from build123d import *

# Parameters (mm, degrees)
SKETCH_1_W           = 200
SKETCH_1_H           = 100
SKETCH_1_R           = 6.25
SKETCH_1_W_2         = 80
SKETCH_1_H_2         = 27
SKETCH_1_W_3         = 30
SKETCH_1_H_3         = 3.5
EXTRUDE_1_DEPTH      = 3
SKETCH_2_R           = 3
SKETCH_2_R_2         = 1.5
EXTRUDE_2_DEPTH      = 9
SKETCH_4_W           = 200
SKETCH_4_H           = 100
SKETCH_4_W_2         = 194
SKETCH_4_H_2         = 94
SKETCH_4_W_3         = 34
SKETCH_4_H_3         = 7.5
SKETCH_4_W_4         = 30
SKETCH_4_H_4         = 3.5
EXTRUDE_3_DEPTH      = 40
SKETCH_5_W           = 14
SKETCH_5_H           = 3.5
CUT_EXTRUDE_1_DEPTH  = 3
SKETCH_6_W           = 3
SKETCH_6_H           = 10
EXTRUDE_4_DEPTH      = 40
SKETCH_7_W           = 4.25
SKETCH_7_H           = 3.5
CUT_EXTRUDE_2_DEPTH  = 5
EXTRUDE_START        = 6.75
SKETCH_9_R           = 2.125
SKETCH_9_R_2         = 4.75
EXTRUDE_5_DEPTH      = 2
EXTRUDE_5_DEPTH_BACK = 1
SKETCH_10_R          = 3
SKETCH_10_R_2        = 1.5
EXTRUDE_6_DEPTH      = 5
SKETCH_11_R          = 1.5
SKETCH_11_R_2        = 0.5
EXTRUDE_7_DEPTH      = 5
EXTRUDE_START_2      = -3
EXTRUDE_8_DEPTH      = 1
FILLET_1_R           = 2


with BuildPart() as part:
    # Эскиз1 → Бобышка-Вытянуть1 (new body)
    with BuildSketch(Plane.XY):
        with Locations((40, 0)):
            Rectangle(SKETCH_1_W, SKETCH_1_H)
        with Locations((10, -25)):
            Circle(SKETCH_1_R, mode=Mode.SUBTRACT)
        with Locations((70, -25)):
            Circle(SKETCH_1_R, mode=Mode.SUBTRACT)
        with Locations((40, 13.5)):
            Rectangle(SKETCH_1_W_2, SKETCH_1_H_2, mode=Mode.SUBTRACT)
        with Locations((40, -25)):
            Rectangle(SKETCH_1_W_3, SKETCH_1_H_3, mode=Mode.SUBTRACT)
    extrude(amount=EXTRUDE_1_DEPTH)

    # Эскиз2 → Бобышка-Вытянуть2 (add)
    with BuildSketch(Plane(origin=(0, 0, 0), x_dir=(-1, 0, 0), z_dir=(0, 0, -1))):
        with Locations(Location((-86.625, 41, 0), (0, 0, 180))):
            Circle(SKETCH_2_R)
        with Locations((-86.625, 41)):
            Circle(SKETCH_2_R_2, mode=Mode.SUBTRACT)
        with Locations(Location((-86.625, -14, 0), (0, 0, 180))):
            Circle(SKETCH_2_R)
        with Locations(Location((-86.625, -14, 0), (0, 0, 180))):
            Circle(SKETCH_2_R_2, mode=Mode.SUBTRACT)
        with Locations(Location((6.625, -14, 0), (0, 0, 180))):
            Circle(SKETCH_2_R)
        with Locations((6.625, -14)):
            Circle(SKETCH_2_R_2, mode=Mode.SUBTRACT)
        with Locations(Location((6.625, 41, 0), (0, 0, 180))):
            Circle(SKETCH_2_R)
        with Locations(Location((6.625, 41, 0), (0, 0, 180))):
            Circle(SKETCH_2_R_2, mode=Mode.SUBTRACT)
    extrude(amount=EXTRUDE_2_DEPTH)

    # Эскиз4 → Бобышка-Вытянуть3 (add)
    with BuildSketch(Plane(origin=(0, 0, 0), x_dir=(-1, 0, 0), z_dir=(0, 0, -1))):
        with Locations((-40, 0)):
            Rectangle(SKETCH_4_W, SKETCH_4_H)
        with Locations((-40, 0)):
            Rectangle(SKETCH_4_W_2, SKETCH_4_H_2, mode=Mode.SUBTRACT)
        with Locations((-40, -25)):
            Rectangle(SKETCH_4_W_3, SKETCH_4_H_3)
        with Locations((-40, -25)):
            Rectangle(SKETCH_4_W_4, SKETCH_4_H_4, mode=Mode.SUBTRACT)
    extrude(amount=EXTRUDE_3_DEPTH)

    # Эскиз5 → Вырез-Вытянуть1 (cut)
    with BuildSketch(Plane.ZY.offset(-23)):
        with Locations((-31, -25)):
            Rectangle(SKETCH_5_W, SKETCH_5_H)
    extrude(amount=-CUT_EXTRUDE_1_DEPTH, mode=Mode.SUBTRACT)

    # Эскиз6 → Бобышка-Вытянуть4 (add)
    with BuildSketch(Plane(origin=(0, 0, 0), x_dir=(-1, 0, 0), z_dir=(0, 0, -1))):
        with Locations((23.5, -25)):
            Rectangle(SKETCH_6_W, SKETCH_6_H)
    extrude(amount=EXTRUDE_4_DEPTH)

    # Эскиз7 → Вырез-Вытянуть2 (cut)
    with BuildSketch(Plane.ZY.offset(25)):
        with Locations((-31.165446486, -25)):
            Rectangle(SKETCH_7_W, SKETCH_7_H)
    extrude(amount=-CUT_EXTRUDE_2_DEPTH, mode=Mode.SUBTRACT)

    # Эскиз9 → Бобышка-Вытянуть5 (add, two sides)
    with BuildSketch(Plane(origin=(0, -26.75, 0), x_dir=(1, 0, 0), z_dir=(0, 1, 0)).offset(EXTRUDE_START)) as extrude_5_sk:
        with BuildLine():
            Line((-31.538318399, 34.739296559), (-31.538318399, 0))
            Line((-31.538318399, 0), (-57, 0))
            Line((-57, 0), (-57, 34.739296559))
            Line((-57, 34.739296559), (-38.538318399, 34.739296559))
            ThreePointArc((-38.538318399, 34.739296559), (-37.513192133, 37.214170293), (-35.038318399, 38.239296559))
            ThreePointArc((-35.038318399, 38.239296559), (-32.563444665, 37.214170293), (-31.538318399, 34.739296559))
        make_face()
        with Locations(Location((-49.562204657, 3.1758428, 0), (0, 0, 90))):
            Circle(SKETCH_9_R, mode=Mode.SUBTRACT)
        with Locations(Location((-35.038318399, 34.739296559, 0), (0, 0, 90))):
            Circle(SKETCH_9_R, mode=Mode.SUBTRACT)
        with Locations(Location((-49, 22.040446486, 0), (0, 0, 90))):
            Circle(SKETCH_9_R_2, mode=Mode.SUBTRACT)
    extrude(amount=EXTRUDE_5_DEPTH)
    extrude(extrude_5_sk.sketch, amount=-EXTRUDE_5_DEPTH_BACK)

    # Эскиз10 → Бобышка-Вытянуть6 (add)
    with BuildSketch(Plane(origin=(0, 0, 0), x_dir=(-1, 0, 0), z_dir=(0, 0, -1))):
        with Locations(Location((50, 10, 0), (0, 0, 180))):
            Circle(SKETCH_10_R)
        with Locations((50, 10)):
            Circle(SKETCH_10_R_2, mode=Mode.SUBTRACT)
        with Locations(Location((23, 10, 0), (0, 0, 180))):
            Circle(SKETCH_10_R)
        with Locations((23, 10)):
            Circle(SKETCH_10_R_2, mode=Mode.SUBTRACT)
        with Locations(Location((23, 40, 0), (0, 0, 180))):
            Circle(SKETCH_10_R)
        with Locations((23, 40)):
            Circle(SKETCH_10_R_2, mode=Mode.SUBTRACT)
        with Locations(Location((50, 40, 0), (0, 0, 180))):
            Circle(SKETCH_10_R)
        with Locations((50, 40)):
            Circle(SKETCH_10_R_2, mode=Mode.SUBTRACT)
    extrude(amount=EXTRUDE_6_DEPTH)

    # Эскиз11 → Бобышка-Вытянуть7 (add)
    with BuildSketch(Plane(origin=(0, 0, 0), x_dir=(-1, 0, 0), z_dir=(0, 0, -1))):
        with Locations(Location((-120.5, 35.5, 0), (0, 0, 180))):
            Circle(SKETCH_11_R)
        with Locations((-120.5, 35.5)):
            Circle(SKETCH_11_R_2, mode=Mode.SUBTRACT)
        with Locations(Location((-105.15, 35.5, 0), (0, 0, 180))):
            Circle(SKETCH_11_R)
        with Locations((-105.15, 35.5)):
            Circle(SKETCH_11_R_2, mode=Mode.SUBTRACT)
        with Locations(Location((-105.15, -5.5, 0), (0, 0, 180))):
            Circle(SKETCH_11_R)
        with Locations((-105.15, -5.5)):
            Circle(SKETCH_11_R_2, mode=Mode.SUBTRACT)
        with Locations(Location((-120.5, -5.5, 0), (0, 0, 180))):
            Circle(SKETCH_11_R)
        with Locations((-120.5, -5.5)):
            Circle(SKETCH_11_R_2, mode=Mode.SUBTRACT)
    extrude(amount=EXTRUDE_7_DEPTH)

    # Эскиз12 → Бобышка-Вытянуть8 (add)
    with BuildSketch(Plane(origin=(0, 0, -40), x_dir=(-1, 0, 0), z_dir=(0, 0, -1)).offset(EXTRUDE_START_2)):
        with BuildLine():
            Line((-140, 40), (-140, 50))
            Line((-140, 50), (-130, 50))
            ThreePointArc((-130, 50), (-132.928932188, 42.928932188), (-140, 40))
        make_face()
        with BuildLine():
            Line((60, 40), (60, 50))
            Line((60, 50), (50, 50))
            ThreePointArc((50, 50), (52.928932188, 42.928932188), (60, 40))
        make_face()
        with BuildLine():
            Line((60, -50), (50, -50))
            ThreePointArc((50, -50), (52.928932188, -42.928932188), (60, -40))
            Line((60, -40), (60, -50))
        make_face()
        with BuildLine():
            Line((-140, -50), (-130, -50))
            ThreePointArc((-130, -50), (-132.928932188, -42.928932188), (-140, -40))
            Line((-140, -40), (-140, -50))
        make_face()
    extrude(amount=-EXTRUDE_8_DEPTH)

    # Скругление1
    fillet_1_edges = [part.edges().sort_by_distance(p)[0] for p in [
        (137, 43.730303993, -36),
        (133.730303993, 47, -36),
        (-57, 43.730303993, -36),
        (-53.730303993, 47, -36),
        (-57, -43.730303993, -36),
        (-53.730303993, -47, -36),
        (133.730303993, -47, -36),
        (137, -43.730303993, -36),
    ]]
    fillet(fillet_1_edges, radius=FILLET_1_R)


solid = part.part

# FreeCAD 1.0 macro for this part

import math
import FreeCAD as App
import Part
import Sketcher


def edges_at(feature, points):
    """Names of the edges that pass closest to the given points."""
    edges = feature.Shape.Edges
    near = lambda p: min(range(len(edges)), key=lambda i: edges[i].distToShape(Part.Vertex(*p))[0])
    return sorted({f"Edge{near(p) + 1}" for p in points})


def add_polygon(sketch, points):
    """Adds a closed chain of lines whose ends are joined by coincident constraints."""
    first, n = sketch.GeometryCount, len(points)
    for a, b in zip(points, points[1:] + points[:1]):
        sketch.addGeometry(Part.LineSegment(App.Vector(*a, 0), App.Vector(*b, 0)), False)
    for i in range(n):
        sketch.addConstraint(Sketcher.Constraint("Coincident", first + i, 2, first + (i + 1) % n, 1))

doc = App.newDocument("Part")
params = doc.addObject("Spreadsheet::Sheet", "Params")
for row, (alias, value) in enumerate([
    ("sketch1_diameter", "12.5 mm"),
    ("sketch1_width", "200 mm"),
    ("sketch1_width2", "30 mm"),
    ("sketch1_width3", "80 mm"),
    ("sketch1_height", "100 mm"),
    ("pad1_length", "3 mm"),
    ("sketch2_diameter", "6 mm"),
    ("sketch2_diameter2", "3 mm"),
    ("pad2_length", "9 mm"),
    ("sketch3_width", "200 mm"),
    ("sketch3_width2", "194 mm"),
    ("sketch3_width3", "34 mm"),
    ("sketch3_width4", "30 mm"),
    ("sketch3_height", "100 mm"),
    ("pad3_length", "40 mm"),
    ("sketch4_height", "14 mm"),
    ("sketch4_width", "3.5 mm"),
    ("pocket1_length", "3 mm"),
    ("sketch5_width", "3 mm"),
    ("sketch5_height", "10 mm"),
    ("pad4_length", "40 mm"),
    ("sketch6_width", "3.5 mm"),
    ("sketch6_height", "4.25 mm"),
    ("pocket2_length", "5 mm"),
    ("sketch7_diameter", "9.5 mm"),
    ("sketch7_radius", "3.5 mm"),
    ("sketch7_diameter2", "4.25 mm"),
    ("pad5_length", "2 mm"),
    ("pad5_length2", "1 mm"),
    ("sketch8_diameter", "6 mm"),
    ("sketch8_diameter2", "3 mm"),
    ("pad6_length", "5 mm"),
    ("sketch9_diameter", "3 mm"),
    ("sketch9_diameter2", "1 mm"),
    ("pad7_length", "5 mm"),
    ("sketch10_radius", "10 mm"),
    ("pad8_length", "1 mm"),
    ("fillet_radius", "2 mm"),
], start=1):
    params.set(f"A{row}", alias)
    params.set(f"B{row}", "=" + value)
    params.setAlias(f"B{row}", alias)

body = doc.addObject("PartDesign::Body", "Body")

sketch1 = body.newObject("Sketcher::SketchObject", "Sketch")
sketch1.AttachmentSupport = (doc.getObject("XY_Plane"), [""])
sketch1.MapMode = "FlatFace"
add_polygon(sketch1, [(-60, 50), (-60, -50), (140, -50), (140, 50)])
sketch1.addGeometry(Part.Circle(App.Vector(10, -25, 0), App.Vector(0, 0, 1), 6.2), False)
add_polygon(sketch1, [(55, -26.8), (25, -26.8), (25, -23.2), (55, -23.2)])
sketch1.addGeometry(Part.Circle(App.Vector(70, -25, 0), App.Vector(0, 0, 1), 6.2), False)
add_polygon(sketch1, [(80, 0), (0, 0), (0, 27), (80, 27)])
sketch1.addConstraint(Sketcher.Constraint("Vertical", 0))
sketch1.addConstraint(Sketcher.Constraint("Horizontal", 1))
sketch1.addConstraint(Sketcher.Constraint("Vertical", 2))
sketch1.addConstraint(Sketcher.Constraint("Horizontal", 3))
sketch1.addConstraint(Sketcher.Constraint("Horizontal", 5))
sketch1.addConstraint(Sketcher.Constraint("Vertical", 6))
sketch1.addConstraint(Sketcher.Constraint("Horizontal", 7))
sketch1.addConstraint(Sketcher.Constraint("Vertical", 8))
sketch1.addConstraint(Sketcher.Constraint("Horizontal", 10))
sketch1.addConstraint(Sketcher.Constraint("Vertical", 11))
sketch1.addConstraint(Sketcher.Constraint("Horizontal", 12))
sketch1.addConstraint(Sketcher.Constraint("Vertical", 13))
sketch1.addConstraint(Sketcher.Constraint("Coincident", 10, 2, -1, 1))
sketch1.addConstraint(Sketcher.Constraint("Equal", 4, 9))
sketch1.addConstraint(Sketcher.Constraint("Horizontal", 4, 3, 9, 3))
sketch1.addConstraint(Sketcher.Constraint("Diameter", 4, 12.5))
sketch1.addConstraint(Sketcher.Constraint("DistanceX", 1, 1, 1, 2, 200.0))
sketch1.addConstraint(Sketcher.Constraint("DistanceX", 5, 2, 5, 1, 30.0))
sketch1.addConstraint(Sketcher.Constraint("DistanceX", 10, 2, 10, 1, 80.0))
sketch1.addConstraint(Sketcher.Constraint("DistanceY", 0, 2, 0, 1, 100.0))
sketch1.addConstraint(Sketcher.Constraint("DistanceY", 11, 1, 11, 2, 27.0))
sketch1.addConstraint(Sketcher.Constraint("DistanceY", 6, 1, 6, 2, 3.5))
sketch1.addConstraint(Sketcher.Constraint("DistanceX", -1, 1, 4, 3, 10.0))
sketch1.addConstraint(Sketcher.Constraint("DistanceY", 4, 3, -1, 1, 25.0))
sketch1.addConstraint(Sketcher.Constraint("DistanceX", -1, 1, 9, 3, 70.0))
sketch1.addConstraint(Sketcher.Constraint("DistanceX", 0, 2, -1, 1, 60.0))
sketch1.addConstraint(Sketcher.Constraint("DistanceY", 0, 2, -1, 1, 50.0))
sketch1.addConstraint(Sketcher.Constraint("DistanceX", -1, 1, 5, 2, 25.0))
sketch1.addConstraint(Sketcher.Constraint("DistanceY", 5, 2, -1, 1, 26.75))
sketch1.setExpression("Constraints[27]", "Params.sketch1_diameter")
sketch1.setExpression("Constraints[28]", "Params.sketch1_width")
sketch1.setExpression("Constraints[29]", "Params.sketch1_width2")
sketch1.setExpression("Constraints[30]", "Params.sketch1_width3")
sketch1.setExpression("Constraints[31]", "Params.sketch1_height")
pad1 = body.newObject("PartDesign::Pad", "Pad")
pad1.Profile = sketch1
pad1.setExpression("Length", "Params.pad1_length")

sketch2 = body.newObject("Sketcher::SketchObject", "Sketch001")
sketch2.AttachmentSupport = (doc.getObject("XY_Plane"), [""])
sketch2.MapMode = "FlatFace"
sketch2.addGeometry(Part.Circle(App.Vector(86.6, 41, 0), App.Vector(0, 0, 1), 3), False)
sketch2.addGeometry(Part.Circle(App.Vector(86.6, 41, 0), App.Vector(0, 0, 1), 1.5), False)
sketch2.addGeometry(Part.Circle(App.Vector(86.6, -14, 0), App.Vector(0, 0, 1), 3), False)
sketch2.addGeometry(Part.Circle(App.Vector(86.6, -14, 0), App.Vector(0, 0, 1), 1.5), False)
sketch2.addGeometry(Part.Circle(App.Vector(-6.6, -14, 0), App.Vector(0, 0, 1), 3), False)
sketch2.addGeometry(Part.Circle(App.Vector(-6.6, -14, 0), App.Vector(0, 0, 1), 1.5), False)
sketch2.addGeometry(Part.Circle(App.Vector(-6.6, 41, 0), App.Vector(0, 0, 1), 3), False)
sketch2.addGeometry(Part.Circle(App.Vector(-6.6, 41, 0), App.Vector(0, 0, 1), 1.5), False)
sketch2.addConstraint(Sketcher.Constraint("Coincident", 1, 3, 0, 3))
sketch2.addConstraint(Sketcher.Constraint("Coincident", 3, 3, 2, 3))
sketch2.addConstraint(Sketcher.Constraint("Coincident", 5, 3, 4, 3))
sketch2.addConstraint(Sketcher.Constraint("Coincident", 7, 3, 6, 3))
sketch2.addConstraint(Sketcher.Constraint("Equal", 0, 2))
sketch2.addConstraint(Sketcher.Constraint("Equal", 1, 3))
sketch2.addConstraint(Sketcher.Constraint("Equal", 2, 4))
sketch2.addConstraint(Sketcher.Constraint("Equal", 3, 5))
sketch2.addConstraint(Sketcher.Constraint("Equal", 4, 6))
sketch2.addConstraint(Sketcher.Constraint("Equal", 5, 7))
sketch2.addConstraint(Sketcher.Constraint("Horizontal", 3, 3, 4, 3))
sketch2.addConstraint(Sketcher.Constraint("Horizontal", 1, 3, 6, 3))
sketch2.addConstraint(Sketcher.Constraint("Vertical", 1, 3, 2, 3))
sketch2.addConstraint(Sketcher.Constraint("Vertical", 5, 3, 6, 3))
sketch2.addConstraint(Sketcher.Constraint("Diameter", 0, 6.0))
sketch2.addConstraint(Sketcher.Constraint("Diameter", 1, 3.0))
sketch2.addConstraint(Sketcher.Constraint("DistanceY", -1, 1, 0, 3, 41.0))
sketch2.addConstraint(Sketcher.Constraint("DistanceY", 2, 3, -1, 1, 14.0))
sketch2.addConstraint(Sketcher.Constraint("DistanceX", 4, 3, 2, 3, 93.25))
sketch2.addConstraint(Sketcher.Constraint("DistanceX", -1, 1, 0, 3, 86.625))
sketch2.setExpression("Constraints[14]", "Params.sketch2_diameter")
sketch2.setExpression("Constraints[15]", "Params.sketch2_diameter2")
pad2 = body.newObject("PartDesign::Pad", "Pad001")
pad2.Profile = sketch2
pad2.setExpression("Length", "Params.pad2_length")
pad2.Reversed = True

sketch3 = body.newObject("Sketcher::SketchObject", "Sketch002")
sketch3.AttachmentSupport = (doc.getObject("XY_Plane"), [""])
sketch3.MapMode = "FlatFace"
add_polygon(sketch3, [(140, 50), (140, -50), (-60, -50), (-60, 50)])
add_polygon(sketch3, [(-57, -47), (137, -47), (137, 47), (-57, 47)])
add_polygon(sketch3, [(57, -21.2), (57, -28.8), (23, -28.8), (23, -21.2)])
add_polygon(sketch3, [(25, -26.8), (55, -26.8), (55, -23.2), (25, -23.2)])
sketch3.addConstraint(Sketcher.Constraint("Vertical", 0))
sketch3.addConstraint(Sketcher.Constraint("Horizontal", 1))
sketch3.addConstraint(Sketcher.Constraint("Vertical", 2))
sketch3.addConstraint(Sketcher.Constraint("Horizontal", 3))
sketch3.addConstraint(Sketcher.Constraint("Horizontal", 4))
sketch3.addConstraint(Sketcher.Constraint("Vertical", 5))
sketch3.addConstraint(Sketcher.Constraint("Horizontal", 6))
sketch3.addConstraint(Sketcher.Constraint("Vertical", 7))
sketch3.addConstraint(Sketcher.Constraint("Vertical", 8))
sketch3.addConstraint(Sketcher.Constraint("Horizontal", 9))
sketch3.addConstraint(Sketcher.Constraint("Vertical", 10))
sketch3.addConstraint(Sketcher.Constraint("Horizontal", 11))
sketch3.addConstraint(Sketcher.Constraint("Horizontal", 12))
sketch3.addConstraint(Sketcher.Constraint("Vertical", 13))
sketch3.addConstraint(Sketcher.Constraint("Horizontal", 14))
sketch3.addConstraint(Sketcher.Constraint("Vertical", 15))
sketch3.addConstraint(Sketcher.Constraint("DistanceX", 1, 2, 1, 1, 200.0))
sketch3.addConstraint(Sketcher.Constraint("DistanceX", 4, 1, 4, 2, 194.0))
sketch3.addConstraint(Sketcher.Constraint("DistanceX", 9, 2, 9, 1, 34.0))
sketch3.addConstraint(Sketcher.Constraint("DistanceX", 12, 1, 12, 2, 30.0))
sketch3.addConstraint(Sketcher.Constraint("DistanceY", 0, 2, 0, 1, 100.0))
sketch3.addConstraint(Sketcher.Constraint("DistanceY", 5, 1, 5, 2, 94.0))
sketch3.addConstraint(Sketcher.Constraint("DistanceY", 8, 2, 8, 1, 7.5))
sketch3.addConstraint(Sketcher.Constraint("DistanceY", 13, 1, 13, 2, 3.5))
sketch3.addConstraint(Sketcher.Constraint("DistanceX", -1, 1, 0, 2, 140.0))
sketch3.addConstraint(Sketcher.Constraint("DistanceY", 0, 2, -1, 1, 50.0))
sketch3.addConstraint(Sketcher.Constraint("DistanceX", -1, 1, 4, 2, 137.0))
sketch3.addConstraint(Sketcher.Constraint("DistanceY", 4, 2, -1, 1, 47.0))
sketch3.addConstraint(Sketcher.Constraint("DistanceX", -1, 1, 8, 2, 57.0))
sketch3.addConstraint(Sketcher.Constraint("DistanceX", -1, 1, 12, 2, 55.0))
sketch3.addConstraint(Sketcher.Constraint("DistanceY", 8, 2, 12, 2, 2.0))
sketch3.addConstraint(Sketcher.Constraint("DistanceY", 8, 2, -1, 1, 28.75))
sketch3.setExpression("Constraints[32]", "Params.sketch3_width")
sketch3.setExpression("Constraints[33]", "Params.sketch3_width2")
sketch3.setExpression("Constraints[34]", "Params.sketch3_width3")
sketch3.setExpression("Constraints[35]", "Params.sketch3_width4")
sketch3.setExpression("Constraints[36]", "Params.sketch3_height")
pad3 = body.newObject("PartDesign::Pad", "Pad002")
pad3.Profile = sketch3
pad3.setExpression("Length", "Params.pad3_length")
pad3.Reversed = True

sketch4 = body.newObject("Sketcher::SketchObject", "Sketch003")
sketch4.AttachmentSupport = (doc.getObject("YZ_Plane"), [""])
sketch4.MapMode = "FlatFace"
sketch4.AttachmentOffset = App.Placement(App.Vector(0, 0, 23), App.Rotation())
add_polygon(sketch4, [(-23.2, -38), (-26.8, -38), (-26.8, -24), (-23.2, -24)])
sketch4.addConstraint(Sketcher.Constraint("Horizontal", 0))
sketch4.addConstraint(Sketcher.Constraint("Vertical", 1))
sketch4.addConstraint(Sketcher.Constraint("Horizontal", 2))
sketch4.addConstraint(Sketcher.Constraint("Vertical", 3))
sketch4.addConstraint(Sketcher.Constraint("DistanceY", 1, 1, 1, 2, 14.0))
sketch4.addConstraint(Sketcher.Constraint("DistanceX", 0, 2, 0, 1, 3.5))
sketch4.addConstraint(Sketcher.Constraint("DistanceY", 0, 2, -1, 1, 38.0))
sketch4.addConstraint(Sketcher.Constraint("DistanceX", 0, 2, -1, 1, 26.75))
sketch4.setExpression("Constraints[8]", "Params.sketch4_height")
sketch4.setExpression("Constraints[9]", "Params.sketch4_width")
pocket1 = body.newObject("PartDesign::Pocket", "Pocket")
pocket1.Profile = sketch4
pocket1.setExpression("Length", "Params.pocket1_length")
pocket1.Reversed = True

sketch5 = body.newObject("Sketcher::SketchObject", "Sketch004")
sketch5.AttachmentSupport = (doc.getObject("XY_Plane"), [""])
sketch5.MapMode = "FlatFace"
add_polygon(sketch5, [(-22, -20), (-22, -30), (-25, -30), (-25, -20)])
sketch5.addConstraint(Sketcher.Constraint("Vertical", 0))
sketch5.addConstraint(Sketcher.Constraint("Horizontal", 1))
sketch5.addConstraint(Sketcher.Constraint("Vertical", 2))
sketch5.addConstraint(Sketcher.Constraint("Horizontal", 3))
sketch5.addConstraint(Sketcher.Constraint("DistanceX", 1, 2, 1, 1, 3.0))
sketch5.addConstraint(Sketcher.Constraint("DistanceY", 0, 2, 0, 1, 10.0))
sketch5.addConstraint(Sketcher.Constraint("DistanceX", 0, 2, -1, 1, 22.0))
sketch5.addConstraint(Sketcher.Constraint("DistanceY", 0, 2, -1, 1, 30.0))
sketch5.setExpression("Constraints[8]", "Params.sketch5_width")
sketch5.setExpression("Constraints[9]", "Params.sketch5_height")
pad4 = body.newObject("PartDesign::Pad", "Pad003")
pad4.Profile = sketch5
pad4.setExpression("Length", "Params.pad4_length")
pad4.Reversed = True

sketch6 = body.newObject("Sketcher::SketchObject", "Sketch005")
sketch6.AttachmentSupport = (doc.getObject("YZ_Plane"), [""])
sketch6.MapMode = "FlatFace"
sketch6.AttachmentOffset = App.Placement(App.Vector(0, 0, -25), App.Rotation())
add_polygon(sketch6, [(-23.2, -33.3), (-26.8, -33.3), (-26.8, -29), (-23.2, -29)])
sketch6.addConstraint(Sketcher.Constraint("Horizontal", 0))
sketch6.addConstraint(Sketcher.Constraint("Vertical", 1))
sketch6.addConstraint(Sketcher.Constraint("Horizontal", 2))
sketch6.addConstraint(Sketcher.Constraint("Vertical", 3))
sketch6.addConstraint(Sketcher.Constraint("DistanceX", 0, 2, 0, 1, 3.5))
sketch6.addConstraint(Sketcher.Constraint("DistanceY", 1, 1, 1, 2, 4.25))
sketch6.addConstraint(Sketcher.Constraint("DistanceX", 0, 2, -1, 1, 26.75))
sketch6.addConstraint(Sketcher.Constraint("DistanceY", 0, 2, -1, 1, 33.290446))
sketch6.setExpression("Constraints[8]", "Params.sketch6_width")
sketch6.setExpression("Constraints[9]", "Params.sketch6_height")
pocket2 = body.newObject("PartDesign::Pocket", "Pocket001")
pocket2.Profile = sketch6
pocket2.setExpression("Length", "Params.pocket2_length")
pocket2.Reversed = True

sketch7 = body.newObject("Sketcher::SketchObject", "Sketch006")
sketch7.AttachmentSupport = (doc.getObject("XZ_Plane"), [""])
sketch7.MapMode = "FlatFace"
sketch7.AttachmentOffset = App.Placement(App.Vector(0, 0, 20), App.Rotation())
sketch7.addGeometry(Part.LineSegment(App.Vector(-31.5, 0, 0), App.Vector(-31.5, -34.7, 0)), False)
sketch7.addGeometry(Part.ArcOfCircle(Part.Circle(App.Vector(-35, -34.7, 0), App.Vector(0, 0, 1), 3.5), math.radians(-90), math.radians(0)), False)
sketch7.addGeometry(Part.ArcOfCircle(Part.Circle(App.Vector(-35, -34.7, 0), App.Vector(0, 0, 1), 3.5), math.radians(-180), math.radians(-90)), False)
sketch7.addGeometry(Part.LineSegment(App.Vector(-38.5, -34.7, 0), App.Vector(-57, -34.7, 0)), False)
sketch7.addGeometry(Part.LineSegment(App.Vector(-57, -34.7, 0), App.Vector(-57, 0, 0)), False)
sketch7.addGeometry(Part.LineSegment(App.Vector(-57, 0, 0), App.Vector(-31.5, 0, 0)), False)
sketch7.addGeometry(Part.Circle(App.Vector(-49.6, -3.2, 0), App.Vector(0, 0, 1), 2.1), False)
sketch7.addGeometry(Part.Circle(App.Vector(-35, -34.7, 0), App.Vector(0, 0, 1), 2.1), False)
sketch7.addGeometry(Part.Circle(App.Vector(-49, -22, 0), App.Vector(0, 0, 1), 4.8), False)
sketch7.addConstraint(Sketcher.Constraint("Tangent", 0, 2, 1, 2))
sketch7.addConstraint(Sketcher.Constraint("Tangent", 1, 1, 2, 2))
sketch7.addConstraint(Sketcher.Constraint("Coincident", 2, 1, 3, 1))
sketch7.addConstraint(Sketcher.Constraint("Coincident", 3, 2, 4, 1))
sketch7.addConstraint(Sketcher.Constraint("Coincident", 4, 2, 5, 1))
sketch7.addConstraint(Sketcher.Constraint("Coincident", 5, 2, 0, 1))
sketch7.addConstraint(Sketcher.Constraint("Vertical", 0))
sketch7.addConstraint(Sketcher.Constraint("Horizontal", 3))
sketch7.addConstraint(Sketcher.Constraint("Vertical", 4))
sketch7.addConstraint(Sketcher.Constraint("Horizontal", 5))
sketch7.addConstraint(Sketcher.Constraint("Coincident", 7, 3, 1, 3))
sketch7.addConstraint(Sketcher.Constraint("Equal", 1, 2))
sketch7.addConstraint(Sketcher.Constraint("Equal", 6, 7))
sketch7.addConstraint(Sketcher.Constraint("PointOnObject", 4, 2, -1))
sketch7.addConstraint(Sketcher.Constraint("Horizontal", 0, 2, 2, 1))
sketch7.addConstraint(Sketcher.Constraint("Vertical", 7, 3, 1, 1))
sketch7.addConstraint(Sketcher.Constraint("Diameter", 8, 9.5))
sketch7.addConstraint(Sketcher.Constraint("Radius", 1, 3.5))
sketch7.addConstraint(Sketcher.Constraint("Diameter", 6, 4.25))
sketch7.addConstraint(Sketcher.Constraint("DistanceX", 8, 3, -1, 1, 49.0))
sketch7.addConstraint(Sketcher.Constraint("DistanceX", 3, 2, -1, 1, 57.0))
sketch7.addConstraint(Sketcher.Constraint("DistanceX", 3, 2, 3, 1, 18.461682))
sketch7.addConstraint(Sketcher.Constraint("DistanceY", 0, 2, 0, 1, 34.739297))
sketch7.addConstraint(Sketcher.Constraint("DistanceY", 1, 3, 8, 3, 12.69885))
sketch7.addConstraint(Sketcher.Constraint("DistanceX", 6, 3, -1, 1, 49.562205))
sketch7.addConstraint(Sketcher.Constraint("DistanceY", 6, 3, -1, 1, 3.175843))
sketch7.setExpression("Constraints[16]", "Params.sketch7_diameter")
sketch7.setExpression("Constraints[17]", "Params.sketch7_radius")
sketch7.setExpression("Constraints[18]", "Params.sketch7_diameter2")
pad5 = body.newObject("PartDesign::Pad", "Pad004")
pad5.Profile = sketch7
pad5.Type = "TwoLengths"
pad5.setExpression("Length", "Params.pad5_length")
pad5.setExpression("Length2", "Params.pad5_length2")
pad5.Reversed = True

sketch8 = body.newObject("Sketcher::SketchObject", "Sketch007")
sketch8.AttachmentSupport = (doc.getObject("XY_Plane"), [""])
sketch8.MapMode = "FlatFace"
sketch8.addGeometry(Part.Circle(App.Vector(-50, 10, 0), App.Vector(0, 0, 1), 3), False)
sketch8.addGeometry(Part.Circle(App.Vector(-50, 10, 0), App.Vector(0, 0, 1), 1.5), False)
sketch8.addGeometry(Part.Circle(App.Vector(-23, 10, 0), App.Vector(0, 0, 1), 3), False)
sketch8.addGeometry(Part.Circle(App.Vector(-23, 10, 0), App.Vector(0, 0, 1), 1.5), False)
sketch8.addGeometry(Part.Circle(App.Vector(-23, 40, 0), App.Vector(0, 0, 1), 3), False)
sketch8.addGeometry(Part.Circle(App.Vector(-23, 40, 0), App.Vector(0, 0, 1), 1.5), False)
sketch8.addGeometry(Part.Circle(App.Vector(-50, 40, 0), App.Vector(0, 0, 1), 3), False)
sketch8.addGeometry(Part.Circle(App.Vector(-50, 40, 0), App.Vector(0, 0, 1), 1.5), False)
sketch8.addConstraint(Sketcher.Constraint("Coincident", 1, 3, 0, 3))
sketch8.addConstraint(Sketcher.Constraint("Coincident", 3, 3, 2, 3))
sketch8.addConstraint(Sketcher.Constraint("Coincident", 5, 3, 4, 3))
sketch8.addConstraint(Sketcher.Constraint("Coincident", 7, 3, 6, 3))
sketch8.addConstraint(Sketcher.Constraint("Equal", 0, 2))
sketch8.addConstraint(Sketcher.Constraint("Equal", 1, 3))
sketch8.addConstraint(Sketcher.Constraint("Equal", 2, 4))
sketch8.addConstraint(Sketcher.Constraint("Equal", 3, 5))
sketch8.addConstraint(Sketcher.Constraint("Equal", 4, 6))
sketch8.addConstraint(Sketcher.Constraint("Equal", 5, 7))
sketch8.addConstraint(Sketcher.Constraint("Horizontal", 1, 3, 2, 3))
sketch8.addConstraint(Sketcher.Constraint("Horizontal", 5, 3, 6, 3))
sketch8.addConstraint(Sketcher.Constraint("Vertical", 3, 3, 4, 3))
sketch8.addConstraint(Sketcher.Constraint("Vertical", 1, 3, 6, 3))
sketch8.addConstraint(Sketcher.Constraint("Diameter", 0, 6.0))
sketch8.addConstraint(Sketcher.Constraint("Diameter", 1, 3.0))
sketch8.addConstraint(Sketcher.Constraint("DistanceX", 0, 3, -1, 1, 50.0))
sketch8.addConstraint(Sketcher.Constraint("DistanceY", -1, 1, 0, 3, 10.0))
sketch8.addConstraint(Sketcher.Constraint("DistanceX", 2, 3, -1, 1, 23.0))
sketch8.addConstraint(Sketcher.Constraint("DistanceY", -1, 1, 4, 3, 40.0))
sketch8.setExpression("Constraints[14]", "Params.sketch8_diameter")
sketch8.setExpression("Constraints[15]", "Params.sketch8_diameter2")
pad6 = body.newObject("PartDesign::Pad", "Pad005")
pad6.Profile = sketch8
pad6.setExpression("Length", "Params.pad6_length")
pad6.Reversed = True

sketch9 = body.newObject("Sketcher::SketchObject", "Sketch008")
sketch9.AttachmentSupport = (doc.getObject("XY_Plane"), [""])
sketch9.MapMode = "FlatFace"
sketch9.addGeometry(Part.Circle(App.Vector(120.5, 35.5, 0), App.Vector(0, 0, 1), 1.5), False)
sketch9.addGeometry(Part.Circle(App.Vector(120.5, 35.5, 0), App.Vector(0, 0, 1), 0.5), False)
sketch9.addGeometry(Part.Circle(App.Vector(105.2, 35.5, 0), App.Vector(0, 0, 1), 1.5), False)
sketch9.addGeometry(Part.Circle(App.Vector(105.2, 35.5, 0), App.Vector(0, 0, 1), 0.5), False)
sketch9.addGeometry(Part.Circle(App.Vector(105.2, -5.5, 0), App.Vector(0, 0, 1), 1.5), False)
sketch9.addGeometry(Part.Circle(App.Vector(105.2, -5.5, 0), App.Vector(0, 0, 1), 0.5), False)
sketch9.addGeometry(Part.Circle(App.Vector(120.5, -5.5, 0), App.Vector(0, 0, 1), 1.5), False)
sketch9.addGeometry(Part.Circle(App.Vector(120.5, -5.5, 0), App.Vector(0, 0, 1), 0.5), False)
sketch9.addConstraint(Sketcher.Constraint("Coincident", 1, 3, 0, 3))
sketch9.addConstraint(Sketcher.Constraint("Coincident", 3, 3, 2, 3))
sketch9.addConstraint(Sketcher.Constraint("Coincident", 5, 3, 4, 3))
sketch9.addConstraint(Sketcher.Constraint("Coincident", 7, 3, 6, 3))
sketch9.addConstraint(Sketcher.Constraint("Equal", 0, 2))
sketch9.addConstraint(Sketcher.Constraint("Equal", 1, 3))
sketch9.addConstraint(Sketcher.Constraint("Equal", 2, 4))
sketch9.addConstraint(Sketcher.Constraint("Equal", 3, 5))
sketch9.addConstraint(Sketcher.Constraint("Equal", 4, 6))
sketch9.addConstraint(Sketcher.Constraint("Equal", 5, 7))
sketch9.addConstraint(Sketcher.Constraint("Horizontal", 1, 3, 2, 3))
sketch9.addConstraint(Sketcher.Constraint("Horizontal", 5, 3, 6, 3))
sketch9.addConstraint(Sketcher.Constraint("Vertical", 3, 3, 4, 3))
sketch9.addConstraint(Sketcher.Constraint("Vertical", 1, 3, 6, 3))
sketch9.addConstraint(Sketcher.Constraint("Diameter", 0, 3.0))
sketch9.addConstraint(Sketcher.Constraint("Diameter", 1, 1.0))
sketch9.addConstraint(Sketcher.Constraint("DistanceY", 4, 3, 2, 3, 41.0))
sketch9.addConstraint(Sketcher.Constraint("DistanceX", -1, 1, 0, 3, 120.5))
sketch9.addConstraint(Sketcher.Constraint("DistanceY", -1, 1, 0, 3, 35.5))
sketch9.addConstraint(Sketcher.Constraint("DistanceX", -1, 1, 2, 3, 105.15))
sketch9.setExpression("Constraints[14]", "Params.sketch9_diameter")
sketch9.setExpression("Constraints[15]", "Params.sketch9_diameter2")
pad7 = body.newObject("PartDesign::Pad", "Pad006")
pad7.Profile = sketch9
pad7.setExpression("Length", "Params.pad7_length")
pad7.Reversed = True

sketch10 = body.newObject("Sketcher::SketchObject", "Sketch009")
sketch10.AttachmentSupport = (doc.getObject("XY_Plane"), [""])
sketch10.MapMode = "FlatFace"
sketch10.AttachmentOffset = App.Placement(App.Vector(0, 0, -37), App.Rotation())
sketch10.addGeometry(Part.LineSegment(App.Vector(140, 50, 0), App.Vector(140, 40, 0)), False)
sketch10.addGeometry(Part.ArcOfCircle(Part.Circle(App.Vector(140, 50, 0), App.Vector(0, 0, 1), 10), math.radians(180), math.radians(270)), False)
sketch10.addGeometry(Part.LineSegment(App.Vector(130, 50, 0), App.Vector(140, 50, 0)), False)
sketch10.addGeometry(Part.LineSegment(App.Vector(-60, 40, 0), App.Vector(-60, 50, 0)), False)
sketch10.addGeometry(Part.LineSegment(App.Vector(-60, 50, 0), App.Vector(-50, 50, 0)), False)
sketch10.addGeometry(Part.ArcOfCircle(Part.Circle(App.Vector(-60, 50, 0), App.Vector(0, 0, 1), 10), math.radians(-90), math.radians(0)), False)
sketch10.addGeometry(Part.LineSegment(App.Vector(-50, -50, 0), App.Vector(-60, -50, 0)), False)
sketch10.addGeometry(Part.LineSegment(App.Vector(-60, -50, 0), App.Vector(-60, -40, 0)), False)
sketch10.addGeometry(Part.ArcOfCircle(Part.Circle(App.Vector(-60, -50, 0), App.Vector(0, 0, 1), 10), math.radians(0), math.radians(90)), False)
sketch10.addGeometry(Part.LineSegment(App.Vector(140, -50, 0), App.Vector(130, -50, 0)), False)
sketch10.addGeometry(Part.ArcOfCircle(Part.Circle(App.Vector(140, -50, 0), App.Vector(0, 0, 1), 10), math.radians(90), math.radians(180)), False)
sketch10.addGeometry(Part.LineSegment(App.Vector(140, -40, 0), App.Vector(140, -50, 0)), False)
sketch10.addConstraint(Sketcher.Constraint("Coincident", 0, 2, 1, 2))
sketch10.addConstraint(Sketcher.Constraint("Coincident", 1, 1, 2, 1))
sketch10.addConstraint(Sketcher.Constraint("Coincident", 2, 2, 0, 1))
sketch10.addConstraint(Sketcher.Constraint("Coincident", 3, 2, 4, 1))
sketch10.addConstraint(Sketcher.Constraint("Coincident", 4, 2, 5, 2))
sketch10.addConstraint(Sketcher.Constraint("Coincident", 5, 1, 3, 1))
sketch10.addConstraint(Sketcher.Constraint("Coincident", 6, 2, 7, 1))
sketch10.addConstraint(Sketcher.Constraint("Coincident", 7, 2, 8, 2))
sketch10.addConstraint(Sketcher.Constraint("Coincident", 8, 1, 6, 1))
sketch10.addConstraint(Sketcher.Constraint("Coincident", 9, 2, 10, 2))
sketch10.addConstraint(Sketcher.Constraint("Coincident", 10, 1, 11, 1))
sketch10.addConstraint(Sketcher.Constraint("Coincident", 11, 2, 9, 1))
sketch10.addConstraint(Sketcher.Constraint("Vertical", 0))
sketch10.addConstraint(Sketcher.Constraint("Horizontal", 2))
sketch10.addConstraint(Sketcher.Constraint("Vertical", 3))
sketch10.addConstraint(Sketcher.Constraint("Horizontal", 4))
sketch10.addConstraint(Sketcher.Constraint("Horizontal", 6))
sketch10.addConstraint(Sketcher.Constraint("Vertical", 7))
sketch10.addConstraint(Sketcher.Constraint("Horizontal", 9))
sketch10.addConstraint(Sketcher.Constraint("Vertical", 11))
sketch10.addConstraint(Sketcher.Constraint("Coincident", 2, 2, 1, 3))
sketch10.addConstraint(Sketcher.Constraint("Coincident", 3, 2, 5, 3))
sketch10.addConstraint(Sketcher.Constraint("Coincident", 6, 2, 8, 3))
sketch10.addConstraint(Sketcher.Constraint("Coincident", 11, 2, 10, 3))
sketch10.addConstraint(Sketcher.Constraint("Equal", 1, 5))
sketch10.addConstraint(Sketcher.Constraint("Equal", 5, 8))
sketch10.addConstraint(Sketcher.Constraint("Equal", 8, 10))
sketch10.addConstraint(Sketcher.Constraint("Symmetric", 5, 3, 8, 3, -1))
sketch10.addConstraint(Sketcher.Constraint("Symmetric", 1, 3, 10, 3, -1))
sketch10.addConstraint(Sketcher.Constraint("Horizontal", 1, 3, 5, 3))
sketch10.addConstraint(Sketcher.Constraint("Radius", 1, 10.0))
sketch10.addConstraint(Sketcher.Constraint("DistanceX", -1, 1, 1, 3, 140.0))
sketch10.addConstraint(Sketcher.Constraint("DistanceY", -1, 1, 1, 3, 50.0))
sketch10.addConstraint(Sketcher.Constraint("DistanceX", 5, 3, -1, 1, 60.0))
sketch10.setExpression("Constraints[30]", "Params.sketch10_radius")
pad8 = body.newObject("PartDesign::Pad", "Pad007")
pad8.Profile = sketch10
pad8.setExpression("Length", "Params.pad8_length")
doc.recompute()

fillet = body.newObject("PartDesign::Fillet", "Fillet")
fillet.Base = (pad8, edges_at(pad8, [
    (137, 43.73, -36),
    (133.73, 47, -36),
    (-57, 43.73, -36),
    (-53.73, 47, -36),
    (-57, -43.73, -36),
    (-53.73, -47, -36),
    (133.73, -47, -36),
    (137, -43.73, -36),
]))
fillet.setExpression("Radius", "Params.fillet_radius")

doc.recompute()
